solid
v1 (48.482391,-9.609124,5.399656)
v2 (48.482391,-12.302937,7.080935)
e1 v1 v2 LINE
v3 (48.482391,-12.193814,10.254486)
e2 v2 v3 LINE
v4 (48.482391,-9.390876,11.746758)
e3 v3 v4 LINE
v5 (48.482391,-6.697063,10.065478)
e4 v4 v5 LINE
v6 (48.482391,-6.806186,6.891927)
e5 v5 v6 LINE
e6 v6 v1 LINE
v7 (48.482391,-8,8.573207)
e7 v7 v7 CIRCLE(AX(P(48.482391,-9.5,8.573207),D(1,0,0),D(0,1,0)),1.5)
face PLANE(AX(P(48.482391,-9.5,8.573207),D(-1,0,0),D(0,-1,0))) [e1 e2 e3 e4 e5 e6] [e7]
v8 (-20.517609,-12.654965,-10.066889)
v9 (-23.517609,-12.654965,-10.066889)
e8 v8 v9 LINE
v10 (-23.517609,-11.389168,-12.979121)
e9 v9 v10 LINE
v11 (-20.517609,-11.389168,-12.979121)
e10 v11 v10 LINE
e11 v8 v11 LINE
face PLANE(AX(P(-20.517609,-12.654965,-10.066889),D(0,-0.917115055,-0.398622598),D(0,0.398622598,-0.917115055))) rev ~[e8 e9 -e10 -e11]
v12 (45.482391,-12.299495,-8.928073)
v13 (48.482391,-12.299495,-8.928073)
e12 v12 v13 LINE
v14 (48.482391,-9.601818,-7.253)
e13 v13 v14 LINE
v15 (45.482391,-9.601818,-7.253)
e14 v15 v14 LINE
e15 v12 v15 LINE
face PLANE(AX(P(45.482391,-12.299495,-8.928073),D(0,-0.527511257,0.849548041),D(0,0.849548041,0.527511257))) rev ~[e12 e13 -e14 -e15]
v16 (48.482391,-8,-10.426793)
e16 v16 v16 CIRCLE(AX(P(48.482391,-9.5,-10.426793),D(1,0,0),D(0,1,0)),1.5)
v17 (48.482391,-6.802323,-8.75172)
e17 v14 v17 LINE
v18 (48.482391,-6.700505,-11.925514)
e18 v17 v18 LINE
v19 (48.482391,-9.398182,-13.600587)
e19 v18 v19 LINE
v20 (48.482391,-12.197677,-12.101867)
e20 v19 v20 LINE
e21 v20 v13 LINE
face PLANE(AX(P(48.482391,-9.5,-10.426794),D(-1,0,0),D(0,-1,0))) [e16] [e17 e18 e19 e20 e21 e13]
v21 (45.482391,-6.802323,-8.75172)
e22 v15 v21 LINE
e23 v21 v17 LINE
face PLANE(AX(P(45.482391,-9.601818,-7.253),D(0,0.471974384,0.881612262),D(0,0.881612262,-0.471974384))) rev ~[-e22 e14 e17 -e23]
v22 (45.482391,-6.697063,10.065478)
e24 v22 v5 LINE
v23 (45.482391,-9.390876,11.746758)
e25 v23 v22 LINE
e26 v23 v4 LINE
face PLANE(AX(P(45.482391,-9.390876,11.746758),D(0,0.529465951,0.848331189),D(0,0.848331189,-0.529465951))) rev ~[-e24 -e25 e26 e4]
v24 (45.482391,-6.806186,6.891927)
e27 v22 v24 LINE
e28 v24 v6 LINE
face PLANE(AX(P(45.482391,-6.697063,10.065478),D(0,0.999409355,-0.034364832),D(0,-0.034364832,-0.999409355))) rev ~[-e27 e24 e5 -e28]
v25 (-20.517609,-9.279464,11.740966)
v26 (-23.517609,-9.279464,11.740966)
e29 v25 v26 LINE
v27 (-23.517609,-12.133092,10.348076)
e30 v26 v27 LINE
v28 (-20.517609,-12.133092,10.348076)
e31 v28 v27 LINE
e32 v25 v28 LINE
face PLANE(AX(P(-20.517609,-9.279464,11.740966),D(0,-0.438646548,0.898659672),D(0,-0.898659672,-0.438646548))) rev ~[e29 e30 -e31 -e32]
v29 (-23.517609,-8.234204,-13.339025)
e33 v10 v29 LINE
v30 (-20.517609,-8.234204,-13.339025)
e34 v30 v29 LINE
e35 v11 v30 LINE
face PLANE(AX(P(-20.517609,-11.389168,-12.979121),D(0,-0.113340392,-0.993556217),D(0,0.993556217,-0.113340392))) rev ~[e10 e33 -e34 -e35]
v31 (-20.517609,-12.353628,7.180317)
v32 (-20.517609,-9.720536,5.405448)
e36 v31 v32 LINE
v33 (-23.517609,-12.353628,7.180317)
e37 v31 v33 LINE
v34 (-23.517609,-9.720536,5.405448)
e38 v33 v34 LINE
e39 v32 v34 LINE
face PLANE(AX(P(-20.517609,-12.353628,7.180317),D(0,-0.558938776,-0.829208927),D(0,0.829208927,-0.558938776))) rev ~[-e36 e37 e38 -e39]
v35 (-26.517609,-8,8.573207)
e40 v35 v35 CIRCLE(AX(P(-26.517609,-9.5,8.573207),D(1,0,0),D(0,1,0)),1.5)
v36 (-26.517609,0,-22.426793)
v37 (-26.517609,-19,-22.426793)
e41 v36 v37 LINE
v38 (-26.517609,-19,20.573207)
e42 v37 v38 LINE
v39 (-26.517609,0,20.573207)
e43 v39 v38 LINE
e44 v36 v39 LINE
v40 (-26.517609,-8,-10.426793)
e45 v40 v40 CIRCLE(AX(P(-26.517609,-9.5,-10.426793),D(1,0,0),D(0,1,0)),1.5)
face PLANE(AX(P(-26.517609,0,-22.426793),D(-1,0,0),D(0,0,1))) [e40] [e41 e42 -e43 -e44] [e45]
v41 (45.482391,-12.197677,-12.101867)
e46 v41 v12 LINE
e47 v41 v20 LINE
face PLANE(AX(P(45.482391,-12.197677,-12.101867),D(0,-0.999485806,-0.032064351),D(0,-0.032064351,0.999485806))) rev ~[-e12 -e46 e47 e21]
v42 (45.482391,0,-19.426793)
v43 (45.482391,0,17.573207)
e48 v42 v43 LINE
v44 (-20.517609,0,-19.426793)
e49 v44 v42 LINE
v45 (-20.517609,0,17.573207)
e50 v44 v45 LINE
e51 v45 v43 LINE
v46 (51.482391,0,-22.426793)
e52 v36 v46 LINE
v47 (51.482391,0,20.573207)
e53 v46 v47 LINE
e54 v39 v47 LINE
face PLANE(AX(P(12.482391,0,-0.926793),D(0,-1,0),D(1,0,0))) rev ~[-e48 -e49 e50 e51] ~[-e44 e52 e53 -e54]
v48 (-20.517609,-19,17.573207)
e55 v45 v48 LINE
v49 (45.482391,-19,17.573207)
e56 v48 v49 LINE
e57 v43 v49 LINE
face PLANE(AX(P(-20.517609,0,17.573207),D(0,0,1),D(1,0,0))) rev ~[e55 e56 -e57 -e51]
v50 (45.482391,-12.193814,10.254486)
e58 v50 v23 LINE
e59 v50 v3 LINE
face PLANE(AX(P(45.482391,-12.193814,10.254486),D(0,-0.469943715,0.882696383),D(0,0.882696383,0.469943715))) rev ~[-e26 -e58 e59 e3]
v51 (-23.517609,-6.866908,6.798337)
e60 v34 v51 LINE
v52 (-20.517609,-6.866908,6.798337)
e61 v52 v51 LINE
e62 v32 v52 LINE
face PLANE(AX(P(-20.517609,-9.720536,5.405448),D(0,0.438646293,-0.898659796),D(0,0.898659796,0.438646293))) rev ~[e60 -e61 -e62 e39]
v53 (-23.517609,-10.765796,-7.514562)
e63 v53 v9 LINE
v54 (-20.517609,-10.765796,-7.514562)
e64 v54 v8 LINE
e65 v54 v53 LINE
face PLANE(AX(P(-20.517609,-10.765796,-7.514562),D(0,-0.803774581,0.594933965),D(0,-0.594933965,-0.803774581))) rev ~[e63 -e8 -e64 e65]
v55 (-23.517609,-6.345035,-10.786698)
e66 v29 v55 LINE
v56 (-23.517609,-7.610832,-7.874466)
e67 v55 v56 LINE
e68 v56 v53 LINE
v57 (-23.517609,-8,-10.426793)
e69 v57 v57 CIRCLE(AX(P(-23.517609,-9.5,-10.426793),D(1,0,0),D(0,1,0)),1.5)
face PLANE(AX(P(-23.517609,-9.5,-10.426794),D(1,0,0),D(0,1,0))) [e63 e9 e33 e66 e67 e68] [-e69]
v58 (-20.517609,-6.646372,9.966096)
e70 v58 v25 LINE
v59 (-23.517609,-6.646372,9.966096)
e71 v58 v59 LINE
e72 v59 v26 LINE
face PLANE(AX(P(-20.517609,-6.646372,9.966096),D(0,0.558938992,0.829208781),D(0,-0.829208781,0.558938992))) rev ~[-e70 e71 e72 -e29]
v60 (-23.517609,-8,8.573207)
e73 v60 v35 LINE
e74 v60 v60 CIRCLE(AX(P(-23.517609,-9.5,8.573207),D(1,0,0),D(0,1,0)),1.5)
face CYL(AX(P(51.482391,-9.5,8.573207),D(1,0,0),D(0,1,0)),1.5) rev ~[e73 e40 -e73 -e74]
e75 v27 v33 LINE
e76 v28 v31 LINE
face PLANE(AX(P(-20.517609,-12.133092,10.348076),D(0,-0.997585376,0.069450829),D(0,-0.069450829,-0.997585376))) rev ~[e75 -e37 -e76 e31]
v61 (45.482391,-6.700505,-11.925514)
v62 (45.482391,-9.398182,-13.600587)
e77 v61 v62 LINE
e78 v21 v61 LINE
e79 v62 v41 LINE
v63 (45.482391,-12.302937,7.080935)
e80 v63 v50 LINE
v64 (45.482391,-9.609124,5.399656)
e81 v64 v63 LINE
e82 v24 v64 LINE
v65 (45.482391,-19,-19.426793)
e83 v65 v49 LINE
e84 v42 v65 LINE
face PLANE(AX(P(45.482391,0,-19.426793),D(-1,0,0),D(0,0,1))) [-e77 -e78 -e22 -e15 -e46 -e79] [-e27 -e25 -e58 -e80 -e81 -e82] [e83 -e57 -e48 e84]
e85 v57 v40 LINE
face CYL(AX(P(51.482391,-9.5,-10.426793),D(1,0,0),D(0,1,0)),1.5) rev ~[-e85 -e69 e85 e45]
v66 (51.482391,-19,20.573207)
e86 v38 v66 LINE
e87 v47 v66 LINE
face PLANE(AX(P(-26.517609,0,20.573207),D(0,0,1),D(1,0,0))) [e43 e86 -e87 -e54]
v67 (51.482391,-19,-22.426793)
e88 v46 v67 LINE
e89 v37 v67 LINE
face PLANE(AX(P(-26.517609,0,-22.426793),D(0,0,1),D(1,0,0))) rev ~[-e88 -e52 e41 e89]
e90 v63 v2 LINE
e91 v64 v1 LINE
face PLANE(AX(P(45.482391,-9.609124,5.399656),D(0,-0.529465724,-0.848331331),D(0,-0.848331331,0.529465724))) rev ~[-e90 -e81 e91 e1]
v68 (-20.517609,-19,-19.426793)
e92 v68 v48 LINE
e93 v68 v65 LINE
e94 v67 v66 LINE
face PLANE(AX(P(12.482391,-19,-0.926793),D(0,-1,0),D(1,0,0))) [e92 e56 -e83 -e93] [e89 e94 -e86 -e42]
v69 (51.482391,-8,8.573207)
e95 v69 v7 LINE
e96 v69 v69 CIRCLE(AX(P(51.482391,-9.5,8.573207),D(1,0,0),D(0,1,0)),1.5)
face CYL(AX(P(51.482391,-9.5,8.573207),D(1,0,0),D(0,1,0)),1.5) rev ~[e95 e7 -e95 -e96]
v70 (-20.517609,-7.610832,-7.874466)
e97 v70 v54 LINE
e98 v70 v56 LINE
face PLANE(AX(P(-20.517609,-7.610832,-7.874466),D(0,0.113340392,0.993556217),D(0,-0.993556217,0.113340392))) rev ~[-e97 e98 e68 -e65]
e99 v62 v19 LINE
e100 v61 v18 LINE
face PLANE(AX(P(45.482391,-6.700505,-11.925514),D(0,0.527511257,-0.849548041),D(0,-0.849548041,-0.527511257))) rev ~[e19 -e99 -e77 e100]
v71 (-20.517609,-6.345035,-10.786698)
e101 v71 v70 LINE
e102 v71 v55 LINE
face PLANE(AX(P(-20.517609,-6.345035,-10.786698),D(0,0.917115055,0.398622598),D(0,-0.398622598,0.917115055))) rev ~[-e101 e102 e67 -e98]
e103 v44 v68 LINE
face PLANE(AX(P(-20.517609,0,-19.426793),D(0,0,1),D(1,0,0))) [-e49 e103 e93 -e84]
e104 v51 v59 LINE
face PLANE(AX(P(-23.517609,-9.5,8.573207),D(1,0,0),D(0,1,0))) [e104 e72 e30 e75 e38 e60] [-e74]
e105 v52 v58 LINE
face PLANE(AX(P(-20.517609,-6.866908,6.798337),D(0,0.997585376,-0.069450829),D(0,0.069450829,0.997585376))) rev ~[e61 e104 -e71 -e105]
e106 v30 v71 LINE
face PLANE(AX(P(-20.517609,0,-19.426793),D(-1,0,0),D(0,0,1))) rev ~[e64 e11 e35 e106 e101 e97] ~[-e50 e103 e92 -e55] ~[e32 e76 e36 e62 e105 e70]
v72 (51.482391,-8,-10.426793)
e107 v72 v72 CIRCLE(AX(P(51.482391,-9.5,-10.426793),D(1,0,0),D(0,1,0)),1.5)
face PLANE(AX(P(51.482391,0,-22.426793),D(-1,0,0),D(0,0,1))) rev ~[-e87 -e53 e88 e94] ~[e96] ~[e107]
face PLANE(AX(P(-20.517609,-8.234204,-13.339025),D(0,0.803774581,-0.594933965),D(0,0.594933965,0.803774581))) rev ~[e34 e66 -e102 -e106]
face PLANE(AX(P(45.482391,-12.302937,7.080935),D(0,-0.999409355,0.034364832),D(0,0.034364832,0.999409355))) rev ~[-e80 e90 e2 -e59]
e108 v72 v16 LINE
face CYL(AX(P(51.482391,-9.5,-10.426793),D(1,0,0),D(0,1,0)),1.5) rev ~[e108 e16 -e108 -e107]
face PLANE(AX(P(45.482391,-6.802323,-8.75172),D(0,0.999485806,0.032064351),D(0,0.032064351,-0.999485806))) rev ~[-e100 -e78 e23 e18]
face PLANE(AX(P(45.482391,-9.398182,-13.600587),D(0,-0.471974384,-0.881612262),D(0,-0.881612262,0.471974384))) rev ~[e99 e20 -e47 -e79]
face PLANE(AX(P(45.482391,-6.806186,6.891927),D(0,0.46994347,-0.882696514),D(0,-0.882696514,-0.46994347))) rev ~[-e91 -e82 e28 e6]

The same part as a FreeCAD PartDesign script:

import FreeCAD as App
import Part
import Sketcher
Q = App.Units.Quantity

doc = App.newDocument("Part")
params = doc.addObject("Spreadsheet::Sheet", "Params")
for row, (alias, value) in enumerate([
    ("sketch1_width", "78 mm"),
    ("sketch1_width2", "66 mm"),
    ("sketch1_height", "43 mm"),
    ("sketch1_height2", "37 mm"),
    ("pad1_length", "19 mm"),
    ("sketch2_diameter", "3 mm"),
    ("pocket1_length", "78 mm"),
    ("pocket2_length", "3 mm"),
    ("pocket3_length", "3 mm"),
], start=1):
    params.set(f"A{row}", alias)
    params.set(f"B{row}", "=" + value)
    params.setAlias(f"B{row}", alias)

body = doc.addObject("PartDesign::Body", "Body")

# Sketch on XZ plane
sketch1 = doc.addObject("Sketcher::SketchObject", "Sketch")
body.addObject(sketch1)
sketch1.AttachmentSupport = (doc.XZ_Plane, [""])
sketch1.MapMode = "FlatFace"
sketch1.addGeometry(Part.LineSegment(App.Vector(-27, 21, 0), App.Vector(-27, -22, 0)), False)
sketch1.addGeometry(Part.LineSegment(App.Vector(-27, -22, 0), App.Vector(51, -22, 0)), False)
sketch1.addGeometry(Part.LineSegment(App.Vector(51, -22, 0), App.Vector(51, 21, 0)), False)
sketch1.addGeometry(Part.LineSegment(App.Vector(51, 21, 0), App.Vector(-27, 21, 0)), False)
sketch1.addGeometry(Part.LineSegment(App.Vector(45, -19, 0), App.Vector(-21, -19, 0)), False)
sketch1.addGeometry(Part.LineSegment(App.Vector(-21, -19, 0), App.Vector(-21, 18, 0)), False)
sketch1.addGeometry(Part.LineSegment(App.Vector(-21, 18, 0), App.Vector(45, 18, 0)), False)
sketch1.addGeometry(Part.LineSegment(App.Vector(45, 18, 0), App.Vector(45, -19, 0)), False)
sketch1.addConstraint(Sketcher.Constraint("Coincident", 0, 2, 1, 1))
sketch1.addConstraint(Sketcher.Constraint("Coincident", 1, 2, 2, 1))
sketch1.addConstraint(Sketcher.Constraint("Coincident", 2, 2, 3, 1))
sketch1.addConstraint(Sketcher.Constraint("Coincident", 3, 2, 0, 1))
sketch1.addConstraint(Sketcher.Constraint("Coincident", 4, 2, 5, 1))
sketch1.addConstraint(Sketcher.Constraint("Coincident", 5, 2, 6, 1))
sketch1.addConstraint(Sketcher.Constraint("Coincident", 6, 2, 7, 1))
sketch1.addConstraint(Sketcher.Constraint("Coincident", 7, 2, 4, 1))
sketch1.addConstraint(Sketcher.Constraint("Vertical", 0))
sketch1.addConstraint(Sketcher.Constraint("Horizontal", 1))
sketch1.addConstraint(Sketcher.Constraint("Vertical", 2))
sketch1.addConstraint(Sketcher.Constraint("Horizontal", 3))
sketch1.addConstraint(Sketcher.Constraint("Horizontal", 4))
sketch1.addConstraint(Sketcher.Constraint("Vertical", 5))
sketch1.addConstraint(Sketcher.Constraint("Horizontal", 6))
sketch1.addConstraint(Sketcher.Constraint("Vertical", 7))
sketch1.addConstraint(Sketcher.Constraint("DistanceX", 1, 1, 1, 2, Q("78 mm")))
sketch1.addConstraint(Sketcher.Constraint("DistanceX", 4, 2, 4, 1, Q("66 mm")))
sketch1.addConstraint(Sketcher.Constraint("DistanceY", 0, 2, 0, 1, Q("43 mm")))
sketch1.addConstraint(Sketcher.Constraint("DistanceY", 5, 1, 5, 2, Q("37 mm")))
sketch1.addConstraint(Sketcher.Constraint("DistanceX", 0, 2, 4, 2, Q("6 mm")))
sketch1.addConstraint(Sketcher.Constraint("DistanceY", 0, 2, 4, 2, Q("3 mm")))
sketch1.addConstraint(Sketcher.Constraint("DistanceX", 0, 2, -1, 1, Q("26.517609 mm")))
sketch1.addConstraint(Sketcher.Constraint("DistanceY", 0, 2, -1, 1, Q("22.426793 mm")))
sketch1.setExpression("Constraints[16]", "Params.sketch1_width")
sketch1.setExpression("Constraints[17]", "Params.sketch1_width2")
sketch1.setExpression("Constraints[18]", "Params.sketch1_height")
sketch1.setExpression("Constraints[19]", "Params.sketch1_height2")
pad1 = doc.addObject("PartDesign::Pad", "Pad")
body.addObject(pad1)
pad1.Profile = sketch1
pad1.setExpression("Length", "Params.pad1_length")

# Sketch on YZ plane
sketch2 = doc.addObject("Sketcher::SketchObject", "Sketch001")
body.addObject(sketch2)
sketch2.AttachmentSupport = (doc.YZ_Plane, [""])
sketch2.MapMode = "FlatFace"
sketch2.AttachmentOffset = App.Placement(App.Vector(0, 0, 51.482391), App.Rotation())
sketch2.addGeometry(Part.Circle(App.Vector(-9.5, 8.6, 0), App.Vector(0, 0, 1), 1.5), False)
sketch2.addGeometry(Part.Circle(App.Vector(-9.5, -10.4, 0), App.Vector(0, 0, 1), 1.5), False)
sketch2.addConstraint(Sketcher.Constraint("Equal", 0, 1))
sketch2.addConstraint(Sketcher.Constraint("Vertical", 0, 3, 1, 3))
sketch2.addConstraint(Sketcher.Constraint("Diameter", 0, Q("3 mm")))
sketch2.addConstraint(Sketcher.Constraint("DistanceY", 1, 3, 0, 3, Q("19 mm")))
sketch2.addConstraint(Sketcher.Constraint("DistanceX", 0, 3, -1, 1, Q("9.5 mm")))
sketch2.addConstraint(Sketcher.Constraint("DistanceY", -1, 1, 0, 3, Q("8.573207 mm")))
sketch2.setExpression("Constraints[2]", "Params.sketch2_diameter")
pocket1 = doc.addObject("PartDesign::Pocket", "Pocket")
body.addObject(pocket1)
pocket1.Profile = sketch2
pocket1.setExpression("Length", "Params.pocket1_length")

# Sketch on YZ plane
sketch3 = doc.addObject("Sketcher::SketchObject", "Sketch002")
body.addObject(sketch3)
sketch3.AttachmentSupport = (doc.YZ_Plane, [""])
sketch3.MapMode = "FlatFace"
sketch3.AttachmentOffset = App.Placement(App.Vector(0, 0, -20.517609), App.Rotation())
sketch3.addGeometry(Part.LineSegment(App.Vector(-6.6, 10, 0), App.Vector(-9.3, 11.7, 0)), False)
sketch3.addGeometry(Part.LineSegment(App.Vector(-9.3, 11.7, 0), App.Vector(-12.1, 10.3, 0)), False)
sketch3.addGeometry(Part.LineSegment(App.Vector(-12.1, 10.3, 0), App.Vector(-12.4, 7.2, 0)), False)
sketch3.addGeometry(Part.LineSegment(App.Vector(-12.4, 7.2, 0), App.Vector(-9.7, 5.4, 0)), False)
sketch3.addGeometry(Part.LineSegment(App.Vector(-9.7, 5.4, 0), App.Vector(-6.9, 6.8, 0)), False)
sketch3.addGeometry(Part.LineSegment(App.Vector(-6.9, 6.8, 0), App.Vector(-6.6, 10, 0)), False)
sketch3.addGeometry(Part.LineSegment(App.Vector(-7.6, -7.9, 0), App.Vector(-10.8, -7.5, 0)), False)
sketch3.addGeometry(Part.LineSegment(App.Vector(-10.8, -7.5, 0), App.Vector(-12.7, -10.1, 0)), False)
sketch3.addGeometry(Part.LineSegment(App.Vector(-12.7, -10.1, 0), App.Vector(-11.4, -13, 0)), False)
sketch3.addGeometry(Part.LineSegment(App.Vector(-11.4, -13, 0), App.Vector(-8.2, -13.3, 0)), False)
sketch3.addGeometry(Part.LineSegment(App.Vector(-8.2, -13.3, 0), App.Vector(-6.3, -10.8, 0)), False)
sketch3.addGeometry(Part.LineSegment(App.Vector(-6.3, -10.8, 0), App.Vector(-7.6, -7.9, 0)), False)
sketch3.addConstraint(Sketcher.Constraint("Coincident", 0, 2, 1, 1))
sketch3.addConstraint(Sketcher.Constraint("Coincident", 1, 2, 2, 1))
sketch3.addConstraint(Sketcher.Constraint("Coincident", 2, 2, 3, 1))
sketch3.addConstraint(Sketcher.Constraint("Coincident", 3, 2, 4, 1))
sketch3.addConstraint(Sketcher.Constraint("Coincident", 4, 2, 5, 1))
sketch3.addConstraint(Sketcher.Constraint("Coincident", 5, 2, 0, 1))
sketch3.addConstraint(Sketcher.Constraint("Coincident", 6, 2, 7, 1))
sketch3.addConstraint(Sketcher.Constraint("Coincident", 7, 2, 8, 1))
sketch3.addConstraint(Sketcher.Constraint("Coincident", 8, 2, 9, 1))
sketch3.addConstraint(Sketcher.Constraint("Coincident", 9, 2, 10, 1))
sketch3.addConstraint(Sketcher.Constraint("Coincident", 10, 2, 11, 1))
sketch3.addConstraint(Sketcher.Constraint("Coincident", 11, 2, 6, 1))
sketch3.addConstraint(Sketcher.Constraint("Parallel", 0, 3))
sketch3.addConstraint(Sketcher.Constraint("Parallel", 1, 4))
sketch3.addConstraint(Sketcher.Constraint("Parallel", 2, 5))
sketch3.addConstraint(Sketcher.Constraint("Parallel", 6, 9))
sketch3.addConstraint(Sketcher.Constraint("Parallel", 7, 10))
sketch3.addConstraint(Sketcher.Constraint("Parallel", 8, 11))
sketch3.addConstraint(Sketcher.Constraint("Equal", 0, 1))
sketch3.addConstraint(Sketcher.Constraint("Equal", 1, 2))
sketch3.addConstraint(Sketcher.Constraint("Equal", 2, 3))
sketch3.addConstraint(Sketcher.Constraint("Equal", 5, 6))
sketch3.addConstraint(Sketcher.Constraint("Equal", 6, 7))
sketch3.addConstraint(Sketcher.Constraint("Equal", 7, 8))
sketch3.addConstraint(Sketcher.Constraint("Equal", 8, 9))
sketch3.addConstraint(Sketcher.Constraint("DistanceY", 6, 2, 4, 2, Q("14.312899 mm")))
sketch3.addConstraint(Sketcher.Constraint("DistanceX", 3, 2, 10, 2, Q("3.375501 mm")))
sketch3.addConstraint(Sketcher.Constraint("DistanceY", 6, 2, -1, 1, Q("7.514562 mm")))
sketch3.addConstraint(Sketcher.Constraint("DistanceY", 7, 2, -1, 1, Q("10.066889 mm")))
sketch3.addConstraint(Sketcher.Constraint("DistanceY", 8, 2, -1, 1, Q("12.979121 mm")))
sketch3.addConstraint(Sketcher.Constraint("DistanceY", 1, 2, 0, 2, Q("1.39289 mm")))
sketch3.addConstraint(Sketcher.Constraint("DistanceY", 2, 2, 1, 2, Q("3.167759 mm")))
sketch3.addConstraint(Sketcher.Constraint("DistanceY", 3, 2, 2, 2, Q("1.774869 mm")))
sketch3.addConstraint(Sketcher.Constraint("DistanceX", 3, 2, 0, 2, Q("0.441072 mm")))
sketch3.addConstraint(Sketcher.Constraint("DistanceX", 6, 2, 3, 2, Q("1.04526 mm")))
sketch3.addConstraint(Sketcher.Constraint("DistanceX", 0, 2, -1, 1, Q("9.279464 mm")))
pocket2 = doc.addObject("PartDesign::Pocket", "Pocket001")
body.addObject(pocket2)
pocket2.Profile = sketch3
pocket2.setExpression("Length", "Params.pocket2_length")

# Sketch on YZ plane
sketch4 = doc.addObject("Sketcher::SketchObject", "Sketch003")
body.addObject(sketch4)
sketch4.AttachmentSupport = (doc.YZ_Plane, [""])
sketch4.MapMode = "FlatFace"
sketch4.AttachmentOffset = App.Placement(App.Vector(0, 0, 45.482391), App.Rotation())
sketch4.addGeometry(Part.LineSegment(App.Vector(-9.6, 5.4, 0), App.Vector(-12.3, 7.1, 0)), False)
sketch4.addGeometry(Part.LineSegment(App.Vector(-12.3, 7.1, 0), App.Vector(-12.2, 10.3, 0)), False)
sketch4.addGeometry(Part.LineSegment(App.Vector(-12.2, 10.3, 0), App.Vector(-9.4, 11.7, 0)), False)
sketch4.addGeometry(Part.LineSegment(App.Vector(-9.4, 11.7, 0), App.Vector(-6.7, 10.1, 0)), False)
sketch4.addGeometry(Part.LineSegment(App.Vector(-6.7, 10.1, 0), App.Vector(-6.8, 6.9, 0)), False)
sketch4.addGeometry(Part.LineSegment(App.Vector(-6.8, 6.9, 0), App.Vector(-9.6, 5.4, 0)), False)
sketch4.addGeometry(Part.LineSegment(App.Vector(-9.4, -13.6, 0), App.Vector(-12.2, -12.1, 0)), False)
sketch4.addGeometry(Part.LineSegment(App.Vector(-12.2, -12.1, 0), App.Vector(-12.3, -8.9, 0)), False)
sketch4.addGeometry(Part.LineSegment(App.Vector(-12.3, -8.9, 0), App.Vector(-9.6, -7.3, 0)), False)
sketch4.addGeometry(Part.LineSegment(App.Vector(-9.6, -7.3, 0), App.Vector(-6.8, -8.8, 0)), False)
sketch4.addGeometry(Part.LineSegment(App.Vector(-6.8, -8.8, 0), App.Vector(-6.7, -11.9, 0)), False)
sketch4.addGeometry(Part.LineSegment(App.Vector(-6.7, -11.9, 0), App.Vector(-9.4, -13.6, 0)), False)
sketch4.addConstraint(Sketcher.Constraint("Coincident", 0, 2, 1, 1))
sketch4.addConstraint(Sketcher.Constraint("Coincident", 1, 2, 2, 1))
sketch4.addConstraint(Sketcher.Constraint("Coincident", 2, 2, 3, 1))
sketch4.addConstraint(Sketcher.Constraint("Coincident", 3, 2, 4, 1))
sketch4.addConstraint(Sketcher.Constraint("Coincident", 4, 2, 5, 1))
sketch4.addConstraint(Sketcher.Constraint("Coincident", 5, 2, 0, 1))
sketch4.addConstraint(Sketcher.Constraint("Coincident", 6, 2, 7, 1))
sketch4.addConstraint(Sketcher.Constraint("Coincident", 7, 2, 8, 1))
sketch4.addConstraint(Sketcher.Constraint("Coincident", 8, 2, 9, 1))
sketch4.addConstraint(Sketcher.Constraint("Coincident", 9, 2, 10, 1))
sketch4.addConstraint(Sketcher.Constraint("Coincident", 10, 2, 11, 1))
sketch4.addConstraint(Sketcher.Constraint("Coincident", 11, 2, 6, 1))
sketch4.addConstraint(Sketcher.Constraint("Parallel", 0, 3))
sketch4.addConstraint(Sketcher.Constraint("Parallel", 1, 4))
sketch4.addConstraint(Sketcher.Constraint("Parallel", 2, 5))
sketch4.addConstraint(Sketcher.Constraint("Parallel", 6, 9))
sketch4.addConstraint(Sketcher.Constraint("Parallel", 7, 10))
sketch4.addConstraint(Sketcher.Constraint("Parallel", 8, 11))
sketch4.addConstraint(Sketcher.Constraint("Equal", 0, 1))
sketch4.addConstraint(Sketcher.Constraint("Equal", 1, 2))
sketch4.addConstraint(Sketcher.Constraint("Equal", 2, 3))
sketch4.addConstraint(Sketcher.Constraint("Equal", 5, 6))
sketch4.addConstraint(Sketcher.Constraint("Equal", 6, 7))
sketch4.addConstraint(Sketcher.Constraint("Equal", 7, 8))
sketch4.addConstraint(Sketcher.Constraint("Equal", 8, 9))
sketch4.addConstraint(Sketcher.Constraint("DistanceY", 7, 2, 4, 2, Q("15.82 mm")))
sketch4.addConstraint(Sketcher.Constraint("DistanceY", 8, 2, -1, 1, Q("7.253 mm")))
sketch4.addConstraint(Sketcher.Constraint("DistanceY", 5, 2, 2, 2, Q("6.347102 mm")))
sketch4.addConstraint(Sketcher.Constraint("DistanceX", 5, 2, 9, 2, Q("2.806801 mm")))
sketch4.addConstraint(Sketcher.Constraint("DistanceY", 9, 2, -1, 1, Q("8.75172 mm")))
sketch4.addConstraint(Sketcher.Constraint("DistanceY", 0, 2, 1, 2, Q("3.173551 mm")))
sketch4.addConstraint(Sketcher.Constraint("DistanceY", 1, 2, 2, 2, Q("1.492272 mm")))
sketch4.addConstraint(Sketcher.Constraint("DistanceX", 0, 2, 2, 2, Q("2.912061 mm")))
sketch4.addConstraint(Sketcher.Constraint("DistanceX", 0, 2, 6, 2, Q("0.10526 mm")))
sketch4.addConstraint(Sketcher.Constraint("DistanceX", 7, 2, 5, 2, Q("2.690371 mm")))
sketch4.addConstraint(Sketcher.Constraint("DistanceX", 0, 2, -1, 1, Q("12.302937 mm")))
pocket3 = doc.addObject("PartDesign::Pocket", "Pocket002")
body.addObject(pocket3)
pocket3.Profile = sketch4
pocket3.setExpression("Length", "Params.pocket3_length")
pocket3.Reversed = True

doc.recompute()
